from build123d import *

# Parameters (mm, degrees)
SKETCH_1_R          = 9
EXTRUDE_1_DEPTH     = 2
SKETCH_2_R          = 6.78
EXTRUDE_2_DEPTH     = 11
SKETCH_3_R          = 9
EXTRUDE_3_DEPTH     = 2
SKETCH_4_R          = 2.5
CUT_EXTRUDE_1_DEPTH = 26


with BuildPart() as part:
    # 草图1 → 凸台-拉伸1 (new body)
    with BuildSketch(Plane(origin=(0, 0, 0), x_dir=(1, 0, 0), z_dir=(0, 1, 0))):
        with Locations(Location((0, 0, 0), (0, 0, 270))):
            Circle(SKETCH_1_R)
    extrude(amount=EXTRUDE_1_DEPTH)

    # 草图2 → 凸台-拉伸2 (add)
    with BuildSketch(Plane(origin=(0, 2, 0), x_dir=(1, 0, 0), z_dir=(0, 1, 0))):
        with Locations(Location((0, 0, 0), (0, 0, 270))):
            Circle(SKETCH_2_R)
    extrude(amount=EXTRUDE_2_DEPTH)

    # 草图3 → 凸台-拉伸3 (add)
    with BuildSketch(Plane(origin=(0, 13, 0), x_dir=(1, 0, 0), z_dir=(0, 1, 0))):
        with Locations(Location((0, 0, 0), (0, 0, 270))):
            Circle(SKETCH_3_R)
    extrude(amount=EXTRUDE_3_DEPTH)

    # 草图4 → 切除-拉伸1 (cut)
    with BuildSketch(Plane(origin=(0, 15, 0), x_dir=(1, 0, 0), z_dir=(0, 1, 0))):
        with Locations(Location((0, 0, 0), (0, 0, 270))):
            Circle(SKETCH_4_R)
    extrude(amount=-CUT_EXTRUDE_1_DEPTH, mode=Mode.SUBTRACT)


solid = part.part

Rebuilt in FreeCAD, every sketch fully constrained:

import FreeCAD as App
import Part
import Sketcher
from FreeCAD import Vector

doc = App.newDocument("Part")
params = doc.addObject("Spreadsheet::Sheet", "Params")
for row, (alias, value) in enumerate([
    ("sketch1_diameter", "18 mm"),
    ("pad1_length", "2 mm"),
    ("sketch2_diameter", "13.56 mm"),
    ("pad2_length", "11 mm"),
    ("sketch3_diameter", "18 mm"),
    ("pad3_length", "2 mm"),
    ("sketch4_diameter", "5 mm"),
    ("pocket1_length", "26 mm"),
], start=1):
    params.set(f"A{row}", alias)
    params.set(f"B{row}", "=" + value)
    params.setAlias(f"B{row}", alias)

body = doc.addObject("PartDesign::Body", "Body")

# Sketch on XZ plane
sketch1 = doc.addObject("Sketcher::SketchObject", "Sketch")
body.addObject(sketch1)
sketch1.AttachmentSupport = (doc.XZ_Plane, [""])
sketch1.MapMode = "FlatFace"
sketch1.addGeometry(Part.Circle(Vector(0, 0, 0), Vector(0, 0, 1), 9), False)
sketch1.addConstraint([
    Sketcher.Constraint("Coincident", 0, 3, -1, 1),
    Sketcher.Constraint("Diameter", 0, 18.0),
])
sketch1.setExpression("Constraints[1]", "Params.sketch1_diameter")
pad1 = doc.addObject("PartDesign::Pad", "Pad")
body.addObject(pad1)
pad1.Profile = sketch1
pad1.setExpression("Length", "Params.pad1_length")
pad1.Reversed = True

# Sketch on XZ plane
sketch2 = doc.addObject("Sketcher::SketchObject", "Sketch001")
body.addObject(sketch2)
sketch2.AttachmentSupport = (doc.XZ_Plane, [""])
sketch2.MapMode = "FlatFace"
sketch2.AttachmentOffset = App.Placement(Vector(0, 0, -2), App.Rotation())
sketch2.addGeometry(Part.Circle(Vector(0, 0, 0), Vector(0, 0, 1), 7), False)
sketch2.addConstraint([
    Sketcher.Constraint("Coincident", 0, 3, -1, 1),
    Sketcher.Constraint("Diameter", 0, 13.56),
])
sketch2.setExpression("Constraints[1]", "Params.sketch2_diameter")
pad2 = doc.addObject("PartDesign::Pad", "Pad001")
body.addObject(pad2)
pad2.Profile = sketch2
pad2.setExpression("Length", "Params.pad2_length")
pad2.Reversed = True

# Sketch on XZ plane
sketch3 = doc.addObject("Sketcher::SketchObject", "Sketch002")
body.addObject(sketch3)
sketch3.AttachmentSupport = (doc.XZ_Plane, [""])
sketch3.MapMode = "FlatFace"
sketch3.AttachmentOffset = App.Placement(Vector(0, 0, -13), App.Rotation())
sketch3.addGeometry(Part.Circle(Vector(0, 0, 0), Vector(0, 0, 1), 9), False)
sketch3.addConstraint([
    Sketcher.Constraint("Coincident", 0, 3, -1, 1),
    Sketcher.Constraint("Diameter", 0, 18.0),
])
sketch3.setExpression("Constraints[1]", "Params.sketch3_diameter")
pad3 = doc.addObject("PartDesign::Pad", "Pad002")
body.addObject(pad3)
pad3.Profile = sketch3
pad3.setExpression("Length", "Params.pad3_length")
pad3.Reversed = True

# Sketch on XZ plane
sketch4 = doc.addObject("Sketcher::SketchObject", "Sketch003")
body.addObject(sketch4)
sketch4.AttachmentSupport = (doc.XZ_Plane, [""])
sketch4.MapMode = "FlatFace"
sketch4.AttachmentOffset = App.Placement(Vector(0, 0, -15), App.Rotation())
sketch4.addGeometry(Part.Circle(Vector(0, 0, 0), Vector(0, 0, 1), 2.5), False)
sketch4.addConstraint([
    Sketcher.Constraint("Coincident", 0, 3, -1, 1),
    Sketcher.Constraint("Diameter", 0, 5.0),
])
sketch4.setExpression("Constraints[1]", "Params.sketch4_diameter")
pocket1 = doc.addObject("PartDesign::Pocket", "Pocket")
body.addObject(pocket1)
pocket1.Profile = sketch4
pocket1.setExpression("Length", "Params.pocket1_length")
pocket1.Reversed = True

doc.recompute()
